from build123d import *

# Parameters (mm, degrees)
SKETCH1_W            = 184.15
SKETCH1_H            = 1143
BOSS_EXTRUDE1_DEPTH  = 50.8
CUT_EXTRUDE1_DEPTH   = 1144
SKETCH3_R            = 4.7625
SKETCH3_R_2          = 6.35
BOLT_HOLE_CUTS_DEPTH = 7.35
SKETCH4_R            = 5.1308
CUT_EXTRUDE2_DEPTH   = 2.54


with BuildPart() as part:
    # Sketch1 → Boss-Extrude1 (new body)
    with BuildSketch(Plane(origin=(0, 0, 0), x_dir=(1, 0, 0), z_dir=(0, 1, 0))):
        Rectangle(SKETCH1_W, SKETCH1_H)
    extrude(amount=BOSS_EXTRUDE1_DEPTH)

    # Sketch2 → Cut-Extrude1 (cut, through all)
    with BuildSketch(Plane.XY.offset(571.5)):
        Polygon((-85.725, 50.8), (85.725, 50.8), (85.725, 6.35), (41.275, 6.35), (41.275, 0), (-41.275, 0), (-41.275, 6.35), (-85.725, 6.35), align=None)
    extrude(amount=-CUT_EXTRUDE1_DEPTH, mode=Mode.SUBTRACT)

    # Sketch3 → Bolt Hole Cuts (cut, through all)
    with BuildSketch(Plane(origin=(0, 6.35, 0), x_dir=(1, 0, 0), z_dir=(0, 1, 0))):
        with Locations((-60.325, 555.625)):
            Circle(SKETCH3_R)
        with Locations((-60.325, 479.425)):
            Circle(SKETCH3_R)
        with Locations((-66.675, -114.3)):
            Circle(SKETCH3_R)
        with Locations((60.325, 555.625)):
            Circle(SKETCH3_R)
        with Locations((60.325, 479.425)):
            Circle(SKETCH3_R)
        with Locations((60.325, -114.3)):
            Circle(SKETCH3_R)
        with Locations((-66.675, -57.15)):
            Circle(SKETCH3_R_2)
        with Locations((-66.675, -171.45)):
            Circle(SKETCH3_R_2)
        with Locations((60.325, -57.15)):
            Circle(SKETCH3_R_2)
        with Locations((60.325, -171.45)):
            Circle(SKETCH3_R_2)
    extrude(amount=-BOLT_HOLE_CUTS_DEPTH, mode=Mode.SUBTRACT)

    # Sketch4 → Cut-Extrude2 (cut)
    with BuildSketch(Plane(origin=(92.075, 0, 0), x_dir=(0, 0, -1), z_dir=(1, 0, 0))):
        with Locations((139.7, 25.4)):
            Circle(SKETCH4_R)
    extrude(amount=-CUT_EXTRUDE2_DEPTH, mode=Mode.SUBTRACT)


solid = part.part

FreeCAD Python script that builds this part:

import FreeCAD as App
import Part
import Sketcher
from FreeCAD import Vector
Q = App.Units.Quantity

doc = App.newDocument("Part")
body = doc.addObject("PartDesign::Body", "Body")
body.AllowCompound = True

# Sketch on XZ plane
sketch1 = body.newObject("Sketcher::SketchObject", "Sketch")
sketch1.AttachmentSupport = (doc.getObject("XZ_Plane"), [""])
sketch1.MapMode = "FlatFace"
sketch1.addGeometry([
    Part.LineSegment(Vector(-92, -572, 0), Vector(-92, 572, 0)),
    Part.LineSegment(Vector(-92, 572, 0), Vector(92, 572, 0)),
    Part.LineSegment(Vector(92, 572, 0), Vector(92, -572, 0)),
    Part.LineSegment(Vector(92, -572, 0), Vector(-92, -572, 0)),
], False)
sketch1.addConstraint([
    Sketcher.Constraint("Coincident", 0, 2, 1, 1),
    Sketcher.Constraint("Coincident", 1, 2, 2, 1),
    Sketcher.Constraint("Coincident", 2, 2, 3, 1),
    Sketcher.Constraint("Coincident", 3, 2, 0, 1),
    Sketcher.Constraint("Vertical", 0),
    Sketcher.Constraint("Horizontal", 1),
    Sketcher.Constraint("Vertical", 2),
    Sketcher.Constraint("Horizontal", 3),
    Sketcher.Constraint("Symmetric", 0, 2, 2, 2, -1, 1),
    Sketcher.Constraint("DistanceY", 0, 1, 0, 2, Q("45 in")),
    Sketcher.Constraint("DistanceX", 1, 1, 1, 2, Q("7.25 in")),
])
pad1 = body.newObject("PartDesign::Pad", "Pad")
pad1.Profile = sketch1
pad1.Length = Q("2 in")
pad1.Reversed = True

# Sketch on XY plane
sketch2 = body.newObject("Sketcher::SketchObject", "Sketch001")
sketch2.AttachmentSupport = (doc.getObject("XY_Plane"), [""])
sketch2.MapMode = "FlatFace"
sketch2.AttachmentOffset = App.Placement(Vector(0, 0, 22.5 * 25.4), App.Rotation())
sketch2.addGeometry([
    Part.LineSegment(Vector(86, 51, 0), Vector(-86, 51, 0)),  # 0
    Part.LineSegment(Vector(-86, 51, 0), Vector(-86, 6, 0)),  # 1
    Part.LineSegment(Vector(-86, 6, 0), Vector(-41, 6, 0)),  # 2
    Part.LineSegment(Vector(-41, 6, 0), Vector(-41, 0, 0)),  # 3
    Part.LineSegment(Vector(-41, 0, 0), Vector(41, 0, 0)),  # 4
    Part.LineSegment(Vector(41, 0, 0), Vector(41, 6, 0)),  # 5
    Part.LineSegment(Vector(41, 6, 0), Vector(86, 6, 0)),  # 6
    Part.LineSegment(Vector(86, 6, 0), Vector(86, 51, 0)),  # 7
], False)
sketch2.addConstraint([
    Sketcher.Constraint("Coincident", 0, 2, 1, 1),
    Sketcher.Constraint("Coincident", 1, 2, 2, 1),
    Sketcher.Constraint("Coincident", 2, 2, 3, 1),
    Sketcher.Constraint("Coincident", 3, 2, 4, 1),
    Sketcher.Constraint("Coincident", 4, 2, 5, 1),
    Sketcher.Constraint("Coincident", 5, 2, 6, 1),
    Sketcher.Constraint("Coincident", 6, 2, 7, 1),
    Sketcher.Constraint("Coincident", 7, 2, 0, 1),
    Sketcher.Constraint("Horizontal", 0),
    Sketcher.Constraint("Vertical", 1),
    Sketcher.Constraint("Horizontal", 2),
    Sketcher.Constraint("Vertical", 3),
    Sketcher.Constraint("Horizontal", 4),
    Sketcher.Constraint("Vertical", 5),
    Sketcher.Constraint("Horizontal", 6),
    Sketcher.Constraint("Vertical", 7),
    Sketcher.Constraint("Symmetric", 3, 2, 4, 2, -1, 1),
    Sketcher.Constraint("Symmetric", 1, 2, 6, 2, -2),
    Sketcher.Constraint("Equal", 6, 1),
    Sketcher.Constraint("DistanceY", -1, 1, 0, 2, Q("2 in")),
    Sketcher.Constraint("DistanceX", 1, 2, 4, 2, Q("5 in")),
    Sketcher.Constraint("DistanceX", 0, 2, 0, 1, Q("6.75 in")),
])
pocket1 = body.newObject("PartDesign::Pocket", "Pocket")
pocket1.Profile = sketch2
pocket1.Type = "ThroughAll"

# Sketch on XZ plane
sketch3 = body.newObject("Sketcher::SketchObject", "Sketch002")
sketch3.AttachmentSupport = (doc.getObject("XZ_Plane"), [""])
sketch3.MapMode = "FlatFace"
sketch3.AttachmentOffset = App.Placement(Vector(0, 0, -0.25 * 25.4), App.Rotation())
sketch3.addGeometry([
    Part.Circle(Vector(-60.3, -555.6, 0), Vector(0, 0, 1), 4.8),  # 0
    Part.Circle(Vector(-60.3, -479.4, 0), Vector(0, 0, 1), 4.8),  # 1
    Part.Circle(Vector(-66.7, 114.3, 0), Vector(0, 0, 1), 4.8),  # 2
    Part.Circle(Vector(60.3, -555.6, 0), Vector(0, 0, 1), 4.8),  # 3
    Part.Circle(Vector(60.3, -479.4, 0), Vector(0, 0, 1), 4.8),  # 4
    Part.Circle(Vector(60.3, 114.3, 0), Vector(0, 0, 1), 4.8),  # 5
    Part.Circle(Vector(-66.7, 57.1, 0), Vector(0, 0, 1), 6.3),  # 6
    Part.Circle(Vector(-66.7, 171.4, 0), Vector(0, 0, 1), 6.3),  # 7
    Part.Circle(Vector(60.3, 57.1, 0), Vector(0, 0, 1), 6.3),  # 8
    Part.Circle(Vector(60.3, 171.4, 0), Vector(0, 0, 1), 6.3),  # 9
], False)
sketch3.addConstraint([
    Sketcher.Constraint("Equal", 0, 1),
    Sketcher.Constraint("Equal", 1, 2),
    Sketcher.Constraint("Equal", 2, 3),
    Sketcher.Constraint("Equal", 3, 4),
    Sketcher.Constraint("Equal", 4, 5),
    Sketcher.Constraint("Equal", 6, 7),
    Sketcher.Constraint("Equal", 7, 8),
    Sketcher.Constraint("Equal", 8, 9),
    Sketcher.Constraint("Symmetric", 0, 3, 3, 3, -2),
    Sketcher.Constraint("Symmetric", 1, 3, 4, 3, -2),
    Sketcher.Constraint("Horizontal", 2, 3, 5, 3),
    Sketcher.Constraint("Horizontal", 6, 3, 8, 3),
    Sketcher.Constraint("Horizontal", 7, 3, 9, 3),
    Sketcher.Constraint("Vertical", 0, 3, 1, 3),
    Sketcher.Constraint("Vertical", 4, 3, 5, 3),
    Sketcher.Constraint("Vertical", 2, 3, 6, 3),
    Sketcher.Constraint("Vertical", 6, 3, 7, 3),
    Sketcher.Constraint("Vertical", 5, 3, 8, 3),
    Sketcher.Constraint("Vertical", 8, 3, 9, 3),
    Sketcher.Constraint("Diameter", 6, Q("0.5 in")),
    Sketcher.Constraint("Diameter", 0, Q("0.375 in")),
    Sketcher.Constraint("DistanceY", 0, 3, 1, 3, Q("3 in")),
    Sketcher.Constraint("DistanceX", 2, 3, 3, 3, Q("5 in")),
    Sketcher.Constraint("DistanceY", -1, 1, 2, 3, Q("4.5 in")),
    Sketcher.Constraint("DistanceY", 6, 3, 7, 3, Q("4.5 in")),
    Sketcher.Constraint("DistanceY", -1, 1, 6, 3, Q("2.25 in")),
    Sketcher.Constraint("DistanceX", 2, 3, 1, 3, Q("0.25 in")),
    Sketcher.Constraint("DistanceY", 0, 3, -1, 1, Q("21.875 in")),
])
pocket2 = body.newObject("PartDesign::Pocket", "Pocket001")
pocket2.Profile = sketch3
pocket2.Type = "ThroughAll"
pocket2.Reversed = True

# Sketch on YZ plane
sketch4 = body.newObject("Sketcher::SketchObject", "Sketch003")
sketch4.AttachmentSupport = (doc.getObject("YZ_Plane"), [""])
sketch4.MapMode = "FlatFace"
sketch4.AttachmentOffset = App.Placement(Vector(0, 0, 3.625 * 25.4), App.Rotation())
sketch4.addGeometry(Part.Circle(Vector(25, -140, 0), Vector(0, 0, 1), 5), False)
sketch4.addConstraint([
    Sketcher.Constraint("Diameter", 0, Q("0.404 in")),
    Sketcher.Constraint("DistanceX", -1, 1, 0, 3, Q("1 in")),
    Sketcher.Constraint("DistanceY", 0, 3, -1, 1, Q("5.5 in")),
])
pocket3 = body.newObject("PartDesign::Pocket", "Pocket002")
pocket3.Profile = sketch4
pocket3.Length = Q("0.1 in")

doc.recompute()
